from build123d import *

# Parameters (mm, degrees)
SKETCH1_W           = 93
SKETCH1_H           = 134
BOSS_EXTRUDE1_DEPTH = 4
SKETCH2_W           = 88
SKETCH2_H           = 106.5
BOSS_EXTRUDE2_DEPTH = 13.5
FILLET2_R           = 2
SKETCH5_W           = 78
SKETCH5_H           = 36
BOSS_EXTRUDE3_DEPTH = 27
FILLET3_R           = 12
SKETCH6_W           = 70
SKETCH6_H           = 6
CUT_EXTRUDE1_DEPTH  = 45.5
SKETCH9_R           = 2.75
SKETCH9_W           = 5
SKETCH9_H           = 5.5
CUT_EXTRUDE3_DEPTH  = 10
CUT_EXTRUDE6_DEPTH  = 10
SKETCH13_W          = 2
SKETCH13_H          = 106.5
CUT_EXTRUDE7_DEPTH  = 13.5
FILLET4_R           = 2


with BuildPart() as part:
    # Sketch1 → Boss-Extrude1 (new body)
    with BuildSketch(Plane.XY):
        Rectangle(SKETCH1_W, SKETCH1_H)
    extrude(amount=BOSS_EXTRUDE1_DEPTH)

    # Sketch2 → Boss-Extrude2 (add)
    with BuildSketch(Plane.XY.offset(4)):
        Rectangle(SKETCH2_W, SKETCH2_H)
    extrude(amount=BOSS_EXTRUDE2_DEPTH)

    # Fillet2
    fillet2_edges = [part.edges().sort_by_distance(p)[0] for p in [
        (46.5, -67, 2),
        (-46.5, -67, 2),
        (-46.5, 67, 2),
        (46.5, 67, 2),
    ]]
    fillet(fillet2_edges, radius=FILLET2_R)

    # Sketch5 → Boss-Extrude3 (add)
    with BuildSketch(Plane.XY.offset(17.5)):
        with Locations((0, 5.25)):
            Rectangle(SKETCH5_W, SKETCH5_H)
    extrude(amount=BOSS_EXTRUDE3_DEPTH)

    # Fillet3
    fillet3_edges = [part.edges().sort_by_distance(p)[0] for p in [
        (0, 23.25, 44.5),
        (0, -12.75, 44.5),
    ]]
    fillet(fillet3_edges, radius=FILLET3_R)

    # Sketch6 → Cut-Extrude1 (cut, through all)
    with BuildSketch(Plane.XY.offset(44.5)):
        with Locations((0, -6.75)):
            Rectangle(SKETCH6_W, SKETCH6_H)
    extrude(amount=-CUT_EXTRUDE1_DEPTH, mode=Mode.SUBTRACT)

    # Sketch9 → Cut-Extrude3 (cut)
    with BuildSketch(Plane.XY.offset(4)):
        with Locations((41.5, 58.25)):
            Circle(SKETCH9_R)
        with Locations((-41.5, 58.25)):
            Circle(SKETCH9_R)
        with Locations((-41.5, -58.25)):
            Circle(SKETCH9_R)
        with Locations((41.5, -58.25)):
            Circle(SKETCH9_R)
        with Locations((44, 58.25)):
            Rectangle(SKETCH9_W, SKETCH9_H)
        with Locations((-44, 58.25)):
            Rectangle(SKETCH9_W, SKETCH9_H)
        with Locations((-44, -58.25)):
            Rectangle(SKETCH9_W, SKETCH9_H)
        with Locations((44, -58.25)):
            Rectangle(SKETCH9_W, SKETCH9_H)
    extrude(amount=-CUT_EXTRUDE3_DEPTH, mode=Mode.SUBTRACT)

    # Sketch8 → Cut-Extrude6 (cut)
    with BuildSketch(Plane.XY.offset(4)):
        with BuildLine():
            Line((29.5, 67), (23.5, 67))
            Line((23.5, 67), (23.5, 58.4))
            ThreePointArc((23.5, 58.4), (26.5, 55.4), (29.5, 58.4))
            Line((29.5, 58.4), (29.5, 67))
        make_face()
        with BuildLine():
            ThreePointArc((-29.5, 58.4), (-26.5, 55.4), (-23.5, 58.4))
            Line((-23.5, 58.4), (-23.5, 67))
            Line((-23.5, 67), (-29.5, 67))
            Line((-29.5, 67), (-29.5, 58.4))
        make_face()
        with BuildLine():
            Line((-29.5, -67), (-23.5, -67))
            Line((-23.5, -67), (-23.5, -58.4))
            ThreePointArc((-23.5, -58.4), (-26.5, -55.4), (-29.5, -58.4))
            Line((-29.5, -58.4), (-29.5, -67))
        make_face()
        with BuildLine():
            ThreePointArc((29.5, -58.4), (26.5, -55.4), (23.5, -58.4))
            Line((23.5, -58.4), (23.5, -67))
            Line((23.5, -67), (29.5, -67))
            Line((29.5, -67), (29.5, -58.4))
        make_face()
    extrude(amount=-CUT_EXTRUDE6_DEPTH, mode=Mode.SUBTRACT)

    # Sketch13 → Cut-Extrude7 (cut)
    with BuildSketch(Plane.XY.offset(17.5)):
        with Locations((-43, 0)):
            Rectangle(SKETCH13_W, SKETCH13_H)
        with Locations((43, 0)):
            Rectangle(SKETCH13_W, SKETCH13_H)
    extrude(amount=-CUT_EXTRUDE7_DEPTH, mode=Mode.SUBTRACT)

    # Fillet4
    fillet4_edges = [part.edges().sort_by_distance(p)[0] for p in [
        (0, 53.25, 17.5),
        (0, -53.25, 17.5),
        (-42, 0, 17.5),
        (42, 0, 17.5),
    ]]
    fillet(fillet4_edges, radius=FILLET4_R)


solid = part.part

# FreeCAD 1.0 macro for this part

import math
import FreeCAD as App
import Part
import Sketcher
from FreeCAD import Vector
Q = App.Units.Quantity


def edges_at(feature, points):
    """Names of the edges that pass closest to the given points."""
    edges = feature.Shape.Edges
    near = lambda p: min(range(len(edges)), key=lambda i: edges[i].distToShape(Part.Vertex(*p))[0])
    return sorted({f"Edge{near(p) + 1}" for p in points})


def add_polygon(sketch, points):
    """Adds a closed chain of lines whose ends are joined by coincident constraints."""
    first, n = sketch.GeometryCount, len(points)
    for a, b in zip(points, points[1:] + points[:1]):
        sketch.addGeometry(Part.LineSegment(App.Vector(*a, 0), App.Vector(*b, 0)), False)
    for i in range(n):
        sketch.addConstraint(Sketcher.Constraint("Coincident", first + i, 2, first + (i + 1) % n, 1))

doc = App.newDocument("Part")
params = doc.addObject("Spreadsheet::Sheet", "Params")
for row, (alias, value) in enumerate([
    ("sketch1_width", "93 mm"),
    ("sketch1_height", "134 mm"),
    ("pad1_length", "4 mm"),
    ("sketch2_width", "88 mm"),
    ("sketch2_height", "106.5 mm"),
    ("pad2_length", "13.5 mm"),
    ("fillet_radius", "2 mm"),
    ("sketch3_width", "78 mm"),
    ("sketch3_height", "36 mm"),
    ("pad3_length", "27 mm"),
    ("fillet2_radius", "12 mm"),
    ("sketch4_width", "70 mm"),
    ("sketch4_height", "6 mm"),
    ("sketch5_width", "5 mm"),
    ("sketch5_radius", "2.75 mm"),
    ("pocket2_length", "10 mm"),
    ("sketch6_radius", "3 mm"),
    ("sketch6_height", "8.6 mm"),
    ("pocket3_length", "10 mm"),
    ("sketch7_width", "2 mm"),
    ("sketch7_height", "106.5 mm"),
    ("pocket4_length", "13.5 mm"),
    ("fillet3_radius", "2 mm"),
], start=1):
    params.set(f"A{row}", alias)
    params.set(f"B{row}", "=" + value)
    params.setAlias(f"B{row}", alias)

body = doc.addObject("PartDesign::Body", "Body")

# Sketch on XY plane
sketch1 = body.newObject("Sketcher::SketchObject", "Sketch")
sketch1.AttachmentSupport = (doc.getObject("XY_Plane"), [""])
sketch1.MapMode = "FlatFace"
add_polygon(sketch1, [(-46, 67), (-46, -67), (46, -67), (46, 67)])  # lines 0-3
sketch1.addConstraint(Sketcher.Constraint("Vertical", 0))
sketch1.addConstraint(Sketcher.Constraint("Horizontal", 1))
sketch1.addConstraint(Sketcher.Constraint("Vertical", 2))
sketch1.addConstraint(Sketcher.Constraint("Horizontal", 3))
sketch1.addConstraint(Sketcher.Constraint("Symmetric", 0, 2, 2, 2, -1, 1))
sketch1.addConstraint(Sketcher.Constraint("DistanceX", 1, 1, 1, 2, Q("93 mm")))
sketch1.addConstraint(Sketcher.Constraint("DistanceY", 0, 2, 0, 1, Q("134 mm")))
sketch1.setExpression("Constraints[9]", "Params.sketch1_width")
sketch1.setExpression("Constraints[10]", "Params.sketch1_height")
pad1 = body.newObject("PartDesign::Pad", "Pad")
pad1.Profile = sketch1
pad1.setExpression("Length", "Params.pad1_length")

# Sketch on XY plane
sketch2 = body.newObject("Sketcher::SketchObject", "Sketch001")
sketch2.AttachmentSupport = (doc.getObject("XY_Plane"), [""])
sketch2.MapMode = "FlatFace"
sketch2.AttachmentOffset = App.Placement(Vector(0, 0, 4), App.Rotation())
add_polygon(sketch2, [(-44, 53), (-44, -53), (44, -53), (44, 53)])  # lines 0-3
sketch2.addConstraint(Sketcher.Constraint("Vertical", 0))
sketch2.addConstraint(Sketcher.Constraint("Horizontal", 1))
sketch2.addConstraint(Sketcher.Constraint("Vertical", 2))
sketch2.addConstraint(Sketcher.Constraint("Horizontal", 3))
sketch2.addConstraint(Sketcher.Constraint("Symmetric", 0, 2, 2, 2, -1, 1))
sketch2.addConstraint(Sketcher.Constraint("DistanceX", 1, 1, 1, 2, Q("88 mm")))
sketch2.addConstraint(Sketcher.Constraint("DistanceY", 0, 2, 0, 1, Q("106.5 mm")))
sketch2.setExpression("Constraints[9]", "Params.sketch2_width")
sketch2.setExpression("Constraints[10]", "Params.sketch2_height")
pad2 = body.newObject("PartDesign::Pad", "Pad001")
pad2.Profile = sketch2
pad2.setExpression("Length", "Params.pad2_length")
doc.recompute()

fillet = body.newObject("PartDesign::Fillet", "Fillet")
fillet.Base = (pad2, edges_at(pad2, [
    (46.5, -67, 2),
    (-46.5, -67, 2),
    (-46.5, 67, 2),
    (46.5, 67, 2),
]))
fillet.setExpression("Radius", "Params.fillet_radius")

# Sketch on XY plane
sketch3 = body.newObject("Sketcher::SketchObject", "Sketch002")
sketch3.AttachmentSupport = (doc.getObject("XY_Plane"), [""])
sketch3.MapMode = "FlatFace"
sketch3.AttachmentOffset = App.Placement(Vector(0, 0, 17.5), App.Rotation())
add_polygon(sketch3, [(-39, 23), (-39, -13), (39, -13), (39, 23)])  # lines 0-3
sketch3.addConstraint(Sketcher.Constraint("Vertical", 0))
sketch3.addConstraint(Sketcher.Constraint("Horizontal", 1))
sketch3.addConstraint(Sketcher.Constraint("Vertical", 2))
sketch3.addConstraint(Sketcher.Constraint("Horizontal", 3))
sketch3.addConstraint(Sketcher.Constraint("DistanceX", 1, 1, 1, 2, Q("78 mm")))
sketch3.addConstraint(Sketcher.Constraint("DistanceY", 0, 2, 0, 1, Q("36 mm")))
sketch3.addConstraint(Sketcher.Constraint("DistanceX", 0, 2, -1, 1, Q("39 mm")))
sketch3.addConstraint(Sketcher.Constraint("DistanceY", 0, 2, -1, 1, Q("12.75 mm")))
sketch3.setExpression("Constraints[8]", "Params.sketch3_width")
sketch3.setExpression("Constraints[9]", "Params.sketch3_height")
pad3 = body.newObject("PartDesign::Pad", "Pad002")
pad3.Profile = sketch3
pad3.setExpression("Length", "Params.pad3_length")
doc.recompute()

fillet2 = body.newObject("PartDesign::Fillet", "Fillet001")
fillet2.Base = (pad3, edges_at(pad3, [(0, 23.25, 44.5), (0, -12.75, 44.5)]))
fillet2.setExpression("Radius", "Params.fillet2_radius")

# Sketch on XY plane
sketch4 = body.newObject("Sketcher::SketchObject", "Sketch003")
sketch4.AttachmentSupport = (doc.getObject("XY_Plane"), [""])
sketch4.MapMode = "FlatFace"
sketch4.AttachmentOffset = App.Placement(Vector(0, 0, 44.5), App.Rotation())
add_polygon(sketch4, [(-35, -4), (-35, -10), (35, -10), (35, -4)])  # lines 0-3
sketch4.addConstraint(Sketcher.Constraint("Vertical", 0))
sketch4.addConstraint(Sketcher.Constraint("Horizontal", 1))
sketch4.addConstraint(Sketcher.Constraint("Vertical", 2))
sketch4.addConstraint(Sketcher.Constraint("Horizontal", 3))
sketch4.addConstraint(Sketcher.Constraint("DistanceX", 1, 1, 1, 2, Q("70 mm")))
sketch4.addConstraint(Sketcher.Constraint("DistanceY", 0, 2, 0, 1, Q("6 mm")))
sketch4.addConstraint(Sketcher.Constraint("DistanceX", 0, 2, -1, 1, Q("35 mm")))
sketch4.addConstraint(Sketcher.Constraint("DistanceY", 0, 2, -1, 1, Q("9.75 mm")))
sketch4.setExpression("Constraints[8]", "Params.sketch4_width")
sketch4.setExpression("Constraints[9]", "Params.sketch4_height")
pocket1 = body.newObject("PartDesign::Pocket", "Pocket")
pocket1.Profile = sketch4
pocket1.Type = "ThroughAll"

# Sketch on XY plane
sketch5 = body.newObject("Sketcher::SketchObject", "Sketch004")
sketch5.AttachmentSupport = (doc.getObject("XY_Plane"), [""])
sketch5.MapMode = "FlatFace"
sketch5.AttachmentOffset = App.Placement(Vector(0, 0, 4), App.Rotation())
sketch5.addGeometry(Part.LineSegment(Vector(41.5, 55.5, 0), Vector(46.5, 55.5, 0)), False)
sketch5.addGeometry(Part.LineSegment(Vector(46.5, 55.5, 0), Vector(46.5, 61, 0)), False)
sketch5.addGeometry(Part.LineSegment(Vector(46.5, 61, 0), Vector(41.5, 61, 0)), False)
sketch5.addGeometry(Part.ArcOfCircle(Part.Circle(Vector(41.5, 58.2, 0), Vector(0, 0, 1), 2.8), math.radians(90), math.radians(270)), False)
sketch5.addGeometry(Part.ArcOfCircle(Part.Circle(Vector(-41.5, 58.2, 0), Vector(0, 0, 1), 2.8), math.radians(-90), math.radians(90)), False)
sketch5.addGeometry(Part.LineSegment(Vector(-41.5, 61, 0), Vector(-46.5, 61, 0)), False)
sketch5.addGeometry(Part.LineSegment(Vector(-46.5, 61, 0), Vector(-46.5, 55.5, 0)), False)
sketch5.addGeometry(Part.LineSegment(Vector(-46.5, 55.5, 0), Vector(-41.5, 55.5, 0)), False)
sketch5.addGeometry(Part.ArcOfCircle(Part.Circle(Vector(-41.5, -58.2, 0), Vector(0, 0, 1), 2.8), math.radians(-90), math.radians(90)), False)
sketch5.addGeometry(Part.LineSegment(Vector(-41.5, -55.5, 0), Vector(-46.5, -55.5, 0)), False)
sketch5.addGeometry(Part.LineSegment(Vector(-46.5, -55.5, 0), Vector(-46.5, -61, 0)), False)
sketch5.addGeometry(Part.LineSegment(Vector(-46.5, -61, 0), Vector(-41.5, -61, 0)), False)
sketch5.addGeometry(Part.LineSegment(Vector(41.5, -61, 0), Vector(46.5, -61, 0)), False)
sketch5.addGeometry(Part.LineSegment(Vector(46.5, -61, 0), Vector(46.5, -55.5, 0)), False)
sketch5.addGeometry(Part.LineSegment(Vector(46.5, -55.5, 0), Vector(41.5, -55.5, 0)), False)
sketch5.addGeometry(Part.ArcOfCircle(Part.Circle(Vector(41.5, -58.2, 0), Vector(0, 0, 1), 2.8), math.radians(90), math.radians(270)), False)
sketch5.addConstraint(Sketcher.Constraint("Coincident", 0, 2, 1, 1))
sketch5.addConstraint(Sketcher.Constraint("Coincident", 1, 2, 2, 1))
sketch5.addConstraint(Sketcher.Constraint("Tangent", 2, 2, 3, 1))
sketch5.addConstraint(Sketcher.Constraint("Tangent", 3, 2, 0, 1))
sketch5.addConstraint(Sketcher.Constraint("Tangent", 4, 2, 5, 1))
sketch5.addConstraint(Sketcher.Constraint("Coincident", 5, 2, 6, 1))
sketch5.addConstraint(Sketcher.Constraint("Coincident", 6, 2, 7, 1))
sketch5.addConstraint(Sketcher.Constraint("Tangent", 7, 2, 4, 1))
sketch5.addConstraint(Sketcher.Constraint("Tangent", 8, 2, 9, 1))
sketch5.addConstraint(Sketcher.Constraint("Coincident", 9, 2, 10, 1))
sketch5.addConstraint(Sketcher.Constraint("Coincident", 10, 2, 11, 1))
sketch5.addConstraint(Sketcher.Constraint("Tangent", 11, 2, 8, 1))
sketch5.addConstraint(Sketcher.Constraint("Coincident", 12, 2, 13, 1))
sketch5.addConstraint(Sketcher.Constraint("Coincident", 13, 2, 14, 1))
sketch5.addConstraint(Sketcher.Constraint("Tangent", 14, 2, 15, 1))
sketch5.addConstraint(Sketcher.Constraint("Tangent", 15, 2, 12, 1))
sketch5.addConstraint(Sketcher.Constraint("Horizontal", 0))
sketch5.addConstraint(Sketcher.Constraint("Vertical", 1))
sketch5.addConstraint(Sketcher.Constraint("Horizontal", 2))
sketch5.addConstraint(Sketcher.Constraint("Horizontal", 5))
sketch5.addConstraint(Sketcher.Constraint("Vertical", 6))
sketch5.addConstraint(Sketcher.Constraint("Horizontal", 7))
sketch5.addConstraint(Sketcher.Constraint("Horizontal", 9))
sketch5.addConstraint(Sketcher.Constraint("Vertical", 10))
sketch5.addConstraint(Sketcher.Constraint("Horizontal", 11))
sketch5.addConstraint(Sketcher.Constraint("Horizontal", 12))
sketch5.addConstraint(Sketcher.Constraint("Vertical", 13))
sketch5.addConstraint(Sketcher.Constraint("Horizontal", 14))
sketch5.addConstraint(Sketcher.Constraint("Equal", 3, 4))
sketch5.addConstraint(Sketcher.Constraint("Equal", 4, 8))
sketch5.addConstraint(Sketcher.Constraint("Equal", 8, 15))
sketch5.addConstraint(Sketcher.Constraint("Symmetric", 3, 3, 8, 3, -1, 1))
sketch5.addConstraint(Sketcher.Constraint("Symmetric", 4, 3, 15, 3, -1, 1))
sketch5.addConstraint(Sketcher.Constraint("Symmetric", 3, 3, 4, 3, -2))
sketch5.addConstraint(Sketcher.Constraint("Vertical", 6, 2, 9, 2))
sketch5.addConstraint(Sketcher.Constraint("Vertical", 1, 2, 12, 2))
sketch5.addConstraint(Sketcher.Constraint("Equal", 2, 5))
sketch5.addConstraint(Sketcher.Constraint("DistanceX", 0, 1, 0, 2, Q("5 mm")))
sketch5.addConstraint(Sketcher.Constraint("Radius", 3, Q("2.75 mm")))
sketch5.addConstraint(Sketcher.Constraint("DistanceY", -1, 1, 1, 2, Q("61 mm")))
sketch5.addConstraint(Sketcher.Constraint("DistanceX", 4, 3, 3, 3, Q("83 mm")))
sketch5.setExpression("Constraints[37]", "Params.sketch5_width")
sketch5.setExpression("Constraints[38]", "Params.sketch5_radius")
pocket2 = body.newObject("PartDesign::Pocket", "Pocket001")
pocket2.Profile = sketch5
pocket2.setExpression("Length", "Params.pocket2_length")

# Sketch on XY plane
sketch6 = body.newObject("Sketcher::SketchObject", "Sketch005")
sketch6.AttachmentSupport = (doc.getObject("XY_Plane"), [""])
sketch6.MapMode = "FlatFace"
sketch6.AttachmentOffset = App.Placement(Vector(0, 0, 4), App.Rotation())
sketch6.addGeometry(Part.LineSegment(Vector(29.5, 67, 0), Vector(23.5, 67, 0)), False)
sketch6.addGeometry(Part.LineSegment(Vector(23.5, 67, 0), Vector(23.5, 58.4, 0)), False)
sketch6.addGeometry(Part.ArcOfCircle(Part.Circle(Vector(26.5, 58.4, 0), Vector(0, 0, 1), 3), math.radians(180), math.radians(360)), False)
sketch6.addGeometry(Part.LineSegment(Vector(29.5, 58.4, 0), Vector(29.5, 67, 0)), False)
sketch6.addGeometry(Part.ArcOfCircle(Part.Circle(Vector(-26.5, 58.4, 0), Vector(0, 0, 1), 3), math.radians(180), math.radians(360)), False)
sketch6.addGeometry(Part.LineSegment(Vector(-23.5, 58.4, 0), Vector(-23.5, 67, 0)), False)
sketch6.addGeometry(Part.LineSegment(Vector(-23.5, 67, 0), Vector(-29.5, 67, 0)), False)
sketch6.addGeometry(Part.LineSegment(Vector(-29.5, 67, 0), Vector(-29.5, 58.4, 0)), False)
sketch6.addGeometry(Part.LineSegment(Vector(-29.5, -67, 0), Vector(-23.5, -67, 0)), False)
sketch6.addGeometry(Part.LineSegment(Vector(-23.5, -67, 0), Vector(-23.5, -58.4, 0)), False)
sketch6.addGeometry(Part.ArcOfCircle(Part.Circle(Vector(-26.5, -58.4, 0), Vector(0, 0, 1), 3), math.radians(0), math.radians(180)), False)
sketch6.addGeometry(Part.LineSegment(Vector(-29.5, -58.4, 0), Vector(-29.5, -67, 0)), False)
sketch6.addGeometry(Part.ArcOfCircle(Part.Circle(Vector(26.5, -58.4, 0), Vector(0, 0, 1), 3), math.radians(0), math.radians(180)), False)
sketch6.addGeometry(Part.LineSegment(Vector(23.5, -58.4, 0), Vector(23.5, -67, 0)), False)
sketch6.addGeometry(Part.LineSegment(Vector(23.5, -67, 0), Vector(29.5, -67, 0)), False)
sketch6.addGeometry(Part.LineSegment(Vector(29.5, -67, 0), Vector(29.5, -58.4, 0)), False)
sketch6.addConstraint(Sketcher.Constraint("Coincident", 0, 2, 1, 1))
sketch6.addConstraint(Sketcher.Constraint("Tangent", 1, 2, 2, 1))
sketch6.addConstraint(Sketcher.Constraint("Tangent", 2, 2, 3, 1))
sketch6.addConstraint(Sketcher.Constraint("Coincident", 3, 2, 0, 1))
sketch6.addConstraint(Sketcher.Constraint("Tangent", 4, 2, 5, 1))
sketch6.addConstraint(Sketcher.Constraint("Coincident", 5, 2, 6, 1))
sketch6.addConstraint(Sketcher.Constraint("Coincident", 6, 2, 7, 1))
sketch6.addConstraint(Sketcher.Constraint("Tangent", 7, 2, 4, 1))
sketch6.addConstraint(Sketcher.Constraint("Coincident", 8, 2, 9, 1))
sketch6.addConstraint(Sketcher.Constraint("Tangent", 9, 2, 10, 1))
sketch6.addConstraint(Sketcher.Constraint("Tangent", 10, 2, 11, 1))
sketch6.addConstraint(Sketcher.Constraint("Coincident", 11, 2, 8, 1))
sketch6.addConstraint(Sketcher.Constraint("Tangent", 12, 2, 13, 1))
sketch6.addConstraint(Sketcher.Constraint("Coincident", 13, 2, 14, 1))
sketch6.addConstraint(Sketcher.Constraint("Coincident", 14, 2, 15, 1))
sketch6.addConstraint(Sketcher.Constraint("Tangent", 15, 2, 12, 1))
sketch6.addConstraint(Sketcher.Constraint("Horizontal", 0))
sketch6.addConstraint(Sketcher.Constraint("Vertical", 1))
sketch6.addConstraint(Sketcher.Constraint("Vertical", 3))
sketch6.addConstraint(Sketcher.Constraint("Vertical", 5))
sketch6.addConstraint(Sketcher.Constraint("Horizontal", 6))
sketch6.addConstraint(Sketcher.Constraint("Vertical", 7))
sketch6.addConstraint(Sketcher.Constraint("Horizontal", 8))
sketch6.addConstraint(Sketcher.Constraint("Vertical", 9))
sketch6.addConstraint(Sketcher.Constraint("Vertical", 11))
sketch6.addConstraint(Sketcher.Constraint("Vertical", 13))
sketch6.addConstraint(Sketcher.Constraint("Horizontal", 14))
sketch6.addConstraint(Sketcher.Constraint("Vertical", 15))
sketch6.addConstraint(Sketcher.Constraint("Equal", 2, 4))
sketch6.addConstraint(Sketcher.Constraint("Equal", 4, 10))
sketch6.addConstraint(Sketcher.Constraint("Equal", 10, 12))
sketch6.addConstraint(Sketcher.Constraint("Symmetric", 2, 3, 10, 3, -1, 1))
sketch6.addConstraint(Sketcher.Constraint("Symmetric", 4, 3, 12, 3, -1, 1))
sketch6.addConstraint(Sketcher.Constraint("Symmetric", 2, 3, 4, 3, -2))
sketch6.addConstraint(Sketcher.Constraint("Horizontal", 3, 2, 5, 2))
sketch6.addConstraint(Sketcher.Constraint("Horizontal", 11, 2, 13, 2))
sketch6.addConstraint(Sketcher.Constraint("Equal", 7, 9))
sketch6.addConstraint(Sketcher.Constraint("Radius", 2, Q("3 mm")))
sketch6.addConstraint(Sketcher.Constraint("DistanceY", 1, 2, 1, 1, Q("8.6 mm")))
sketch6.addConstraint(Sketcher.Constraint("DistanceY", -1, 1, 0, 2, Q("67 mm")))
sketch6.addConstraint(Sketcher.Constraint("DistanceX", 4, 3, 2, 3, Q("53 mm")))
sketch6.setExpression("Constraints[37]", "Params.sketch6_radius")
sketch6.setExpression("Constraints[38]", "Params.sketch6_height")
pocket3 = body.newObject("PartDesign::Pocket", "Pocket002")
pocket3.Profile = sketch6
pocket3.setExpression("Length", "Params.pocket3_length")

# Sketch on XY plane
sketch7 = body.newObject("Sketcher::SketchObject", "Sketch006")
sketch7.AttachmentSupport = (doc.getObject("XY_Plane"), [""])
sketch7.MapMode = "FlatFace"
sketch7.AttachmentOffset = App.Placement(Vector(0, 0, 17.5), App.Rotation())
add_polygon(sketch7, [(-44, 53.2), (-44, -53.2), (-42, -53.2), (-42, 53.2)])  # lines 0-3
add_polygon(sketch7, [(42, 53.2), (42, -53.2), (44, -53.2), (44, 53.2)])  # lines 4-7
sketch7.addConstraint(Sketcher.Constraint("Vertical", 0))
sketch7.addConstraint(Sketcher.Constraint("Horizontal", 1))
sketch7.addConstraint(Sketcher.Constraint("Vertical", 2))
sketch7.addConstraint(Sketcher.Constraint("Horizontal", 3))
sketch7.addConstraint(Sketcher.Constraint("Vertical", 4))
sketch7.addConstraint(Sketcher.Constraint("Horizontal", 5))
sketch7.addConstraint(Sketcher.Constraint("Vertical", 6))
sketch7.addConstraint(Sketcher.Constraint("Horizontal", 7))
sketch7.addConstraint(Sketcher.Constraint("Symmetric", 2, 2, 4, 2, -1, 1))
sketch7.addConstraint(Sketcher.Constraint("Symmetric", 0, 2, 6, 2, -1, 1))
sketch7.addConstraint(Sketcher.Constraint("Horizontal", 1, 2, 4, 2))
sketch7.addConstraint(Sketcher.Constraint("DistanceX", 1, 1, 1, 2, Q("2 mm")))
sketch7.addConstraint(Sketcher.Constraint("DistanceY", 0, 2, 0, 1, Q("106.5 mm")))
sketch7.addConstraint(Sketcher.Constraint("DistanceX", 0, 2, -1, 1, Q("44 mm")))
sketch7.setExpression("Constraints[19]", "Params.sketch7_width")
sketch7.setExpression("Constraints[20]", "Params.sketch7_height")
pocket4 = body.newObject("PartDesign::Pocket", "Pocket003")
pocket4.Profile = sketch7
pocket4.setExpression("Length", "Params.pocket4_length")
doc.recompute()

fillet3 = body.newObject("PartDesign::Fillet", "Fillet002")
fillet3.Base = (pocket4, edges_at(pocket4, [
    (0, 53.25, 17.5),
    (0, -53.25, 17.5),
    (-42, 0, 17.5),
    (42, 0, 17.5),
]))
fillet3.setExpression("Radius", "Params.fillet3_radius")

doc.recompute()
